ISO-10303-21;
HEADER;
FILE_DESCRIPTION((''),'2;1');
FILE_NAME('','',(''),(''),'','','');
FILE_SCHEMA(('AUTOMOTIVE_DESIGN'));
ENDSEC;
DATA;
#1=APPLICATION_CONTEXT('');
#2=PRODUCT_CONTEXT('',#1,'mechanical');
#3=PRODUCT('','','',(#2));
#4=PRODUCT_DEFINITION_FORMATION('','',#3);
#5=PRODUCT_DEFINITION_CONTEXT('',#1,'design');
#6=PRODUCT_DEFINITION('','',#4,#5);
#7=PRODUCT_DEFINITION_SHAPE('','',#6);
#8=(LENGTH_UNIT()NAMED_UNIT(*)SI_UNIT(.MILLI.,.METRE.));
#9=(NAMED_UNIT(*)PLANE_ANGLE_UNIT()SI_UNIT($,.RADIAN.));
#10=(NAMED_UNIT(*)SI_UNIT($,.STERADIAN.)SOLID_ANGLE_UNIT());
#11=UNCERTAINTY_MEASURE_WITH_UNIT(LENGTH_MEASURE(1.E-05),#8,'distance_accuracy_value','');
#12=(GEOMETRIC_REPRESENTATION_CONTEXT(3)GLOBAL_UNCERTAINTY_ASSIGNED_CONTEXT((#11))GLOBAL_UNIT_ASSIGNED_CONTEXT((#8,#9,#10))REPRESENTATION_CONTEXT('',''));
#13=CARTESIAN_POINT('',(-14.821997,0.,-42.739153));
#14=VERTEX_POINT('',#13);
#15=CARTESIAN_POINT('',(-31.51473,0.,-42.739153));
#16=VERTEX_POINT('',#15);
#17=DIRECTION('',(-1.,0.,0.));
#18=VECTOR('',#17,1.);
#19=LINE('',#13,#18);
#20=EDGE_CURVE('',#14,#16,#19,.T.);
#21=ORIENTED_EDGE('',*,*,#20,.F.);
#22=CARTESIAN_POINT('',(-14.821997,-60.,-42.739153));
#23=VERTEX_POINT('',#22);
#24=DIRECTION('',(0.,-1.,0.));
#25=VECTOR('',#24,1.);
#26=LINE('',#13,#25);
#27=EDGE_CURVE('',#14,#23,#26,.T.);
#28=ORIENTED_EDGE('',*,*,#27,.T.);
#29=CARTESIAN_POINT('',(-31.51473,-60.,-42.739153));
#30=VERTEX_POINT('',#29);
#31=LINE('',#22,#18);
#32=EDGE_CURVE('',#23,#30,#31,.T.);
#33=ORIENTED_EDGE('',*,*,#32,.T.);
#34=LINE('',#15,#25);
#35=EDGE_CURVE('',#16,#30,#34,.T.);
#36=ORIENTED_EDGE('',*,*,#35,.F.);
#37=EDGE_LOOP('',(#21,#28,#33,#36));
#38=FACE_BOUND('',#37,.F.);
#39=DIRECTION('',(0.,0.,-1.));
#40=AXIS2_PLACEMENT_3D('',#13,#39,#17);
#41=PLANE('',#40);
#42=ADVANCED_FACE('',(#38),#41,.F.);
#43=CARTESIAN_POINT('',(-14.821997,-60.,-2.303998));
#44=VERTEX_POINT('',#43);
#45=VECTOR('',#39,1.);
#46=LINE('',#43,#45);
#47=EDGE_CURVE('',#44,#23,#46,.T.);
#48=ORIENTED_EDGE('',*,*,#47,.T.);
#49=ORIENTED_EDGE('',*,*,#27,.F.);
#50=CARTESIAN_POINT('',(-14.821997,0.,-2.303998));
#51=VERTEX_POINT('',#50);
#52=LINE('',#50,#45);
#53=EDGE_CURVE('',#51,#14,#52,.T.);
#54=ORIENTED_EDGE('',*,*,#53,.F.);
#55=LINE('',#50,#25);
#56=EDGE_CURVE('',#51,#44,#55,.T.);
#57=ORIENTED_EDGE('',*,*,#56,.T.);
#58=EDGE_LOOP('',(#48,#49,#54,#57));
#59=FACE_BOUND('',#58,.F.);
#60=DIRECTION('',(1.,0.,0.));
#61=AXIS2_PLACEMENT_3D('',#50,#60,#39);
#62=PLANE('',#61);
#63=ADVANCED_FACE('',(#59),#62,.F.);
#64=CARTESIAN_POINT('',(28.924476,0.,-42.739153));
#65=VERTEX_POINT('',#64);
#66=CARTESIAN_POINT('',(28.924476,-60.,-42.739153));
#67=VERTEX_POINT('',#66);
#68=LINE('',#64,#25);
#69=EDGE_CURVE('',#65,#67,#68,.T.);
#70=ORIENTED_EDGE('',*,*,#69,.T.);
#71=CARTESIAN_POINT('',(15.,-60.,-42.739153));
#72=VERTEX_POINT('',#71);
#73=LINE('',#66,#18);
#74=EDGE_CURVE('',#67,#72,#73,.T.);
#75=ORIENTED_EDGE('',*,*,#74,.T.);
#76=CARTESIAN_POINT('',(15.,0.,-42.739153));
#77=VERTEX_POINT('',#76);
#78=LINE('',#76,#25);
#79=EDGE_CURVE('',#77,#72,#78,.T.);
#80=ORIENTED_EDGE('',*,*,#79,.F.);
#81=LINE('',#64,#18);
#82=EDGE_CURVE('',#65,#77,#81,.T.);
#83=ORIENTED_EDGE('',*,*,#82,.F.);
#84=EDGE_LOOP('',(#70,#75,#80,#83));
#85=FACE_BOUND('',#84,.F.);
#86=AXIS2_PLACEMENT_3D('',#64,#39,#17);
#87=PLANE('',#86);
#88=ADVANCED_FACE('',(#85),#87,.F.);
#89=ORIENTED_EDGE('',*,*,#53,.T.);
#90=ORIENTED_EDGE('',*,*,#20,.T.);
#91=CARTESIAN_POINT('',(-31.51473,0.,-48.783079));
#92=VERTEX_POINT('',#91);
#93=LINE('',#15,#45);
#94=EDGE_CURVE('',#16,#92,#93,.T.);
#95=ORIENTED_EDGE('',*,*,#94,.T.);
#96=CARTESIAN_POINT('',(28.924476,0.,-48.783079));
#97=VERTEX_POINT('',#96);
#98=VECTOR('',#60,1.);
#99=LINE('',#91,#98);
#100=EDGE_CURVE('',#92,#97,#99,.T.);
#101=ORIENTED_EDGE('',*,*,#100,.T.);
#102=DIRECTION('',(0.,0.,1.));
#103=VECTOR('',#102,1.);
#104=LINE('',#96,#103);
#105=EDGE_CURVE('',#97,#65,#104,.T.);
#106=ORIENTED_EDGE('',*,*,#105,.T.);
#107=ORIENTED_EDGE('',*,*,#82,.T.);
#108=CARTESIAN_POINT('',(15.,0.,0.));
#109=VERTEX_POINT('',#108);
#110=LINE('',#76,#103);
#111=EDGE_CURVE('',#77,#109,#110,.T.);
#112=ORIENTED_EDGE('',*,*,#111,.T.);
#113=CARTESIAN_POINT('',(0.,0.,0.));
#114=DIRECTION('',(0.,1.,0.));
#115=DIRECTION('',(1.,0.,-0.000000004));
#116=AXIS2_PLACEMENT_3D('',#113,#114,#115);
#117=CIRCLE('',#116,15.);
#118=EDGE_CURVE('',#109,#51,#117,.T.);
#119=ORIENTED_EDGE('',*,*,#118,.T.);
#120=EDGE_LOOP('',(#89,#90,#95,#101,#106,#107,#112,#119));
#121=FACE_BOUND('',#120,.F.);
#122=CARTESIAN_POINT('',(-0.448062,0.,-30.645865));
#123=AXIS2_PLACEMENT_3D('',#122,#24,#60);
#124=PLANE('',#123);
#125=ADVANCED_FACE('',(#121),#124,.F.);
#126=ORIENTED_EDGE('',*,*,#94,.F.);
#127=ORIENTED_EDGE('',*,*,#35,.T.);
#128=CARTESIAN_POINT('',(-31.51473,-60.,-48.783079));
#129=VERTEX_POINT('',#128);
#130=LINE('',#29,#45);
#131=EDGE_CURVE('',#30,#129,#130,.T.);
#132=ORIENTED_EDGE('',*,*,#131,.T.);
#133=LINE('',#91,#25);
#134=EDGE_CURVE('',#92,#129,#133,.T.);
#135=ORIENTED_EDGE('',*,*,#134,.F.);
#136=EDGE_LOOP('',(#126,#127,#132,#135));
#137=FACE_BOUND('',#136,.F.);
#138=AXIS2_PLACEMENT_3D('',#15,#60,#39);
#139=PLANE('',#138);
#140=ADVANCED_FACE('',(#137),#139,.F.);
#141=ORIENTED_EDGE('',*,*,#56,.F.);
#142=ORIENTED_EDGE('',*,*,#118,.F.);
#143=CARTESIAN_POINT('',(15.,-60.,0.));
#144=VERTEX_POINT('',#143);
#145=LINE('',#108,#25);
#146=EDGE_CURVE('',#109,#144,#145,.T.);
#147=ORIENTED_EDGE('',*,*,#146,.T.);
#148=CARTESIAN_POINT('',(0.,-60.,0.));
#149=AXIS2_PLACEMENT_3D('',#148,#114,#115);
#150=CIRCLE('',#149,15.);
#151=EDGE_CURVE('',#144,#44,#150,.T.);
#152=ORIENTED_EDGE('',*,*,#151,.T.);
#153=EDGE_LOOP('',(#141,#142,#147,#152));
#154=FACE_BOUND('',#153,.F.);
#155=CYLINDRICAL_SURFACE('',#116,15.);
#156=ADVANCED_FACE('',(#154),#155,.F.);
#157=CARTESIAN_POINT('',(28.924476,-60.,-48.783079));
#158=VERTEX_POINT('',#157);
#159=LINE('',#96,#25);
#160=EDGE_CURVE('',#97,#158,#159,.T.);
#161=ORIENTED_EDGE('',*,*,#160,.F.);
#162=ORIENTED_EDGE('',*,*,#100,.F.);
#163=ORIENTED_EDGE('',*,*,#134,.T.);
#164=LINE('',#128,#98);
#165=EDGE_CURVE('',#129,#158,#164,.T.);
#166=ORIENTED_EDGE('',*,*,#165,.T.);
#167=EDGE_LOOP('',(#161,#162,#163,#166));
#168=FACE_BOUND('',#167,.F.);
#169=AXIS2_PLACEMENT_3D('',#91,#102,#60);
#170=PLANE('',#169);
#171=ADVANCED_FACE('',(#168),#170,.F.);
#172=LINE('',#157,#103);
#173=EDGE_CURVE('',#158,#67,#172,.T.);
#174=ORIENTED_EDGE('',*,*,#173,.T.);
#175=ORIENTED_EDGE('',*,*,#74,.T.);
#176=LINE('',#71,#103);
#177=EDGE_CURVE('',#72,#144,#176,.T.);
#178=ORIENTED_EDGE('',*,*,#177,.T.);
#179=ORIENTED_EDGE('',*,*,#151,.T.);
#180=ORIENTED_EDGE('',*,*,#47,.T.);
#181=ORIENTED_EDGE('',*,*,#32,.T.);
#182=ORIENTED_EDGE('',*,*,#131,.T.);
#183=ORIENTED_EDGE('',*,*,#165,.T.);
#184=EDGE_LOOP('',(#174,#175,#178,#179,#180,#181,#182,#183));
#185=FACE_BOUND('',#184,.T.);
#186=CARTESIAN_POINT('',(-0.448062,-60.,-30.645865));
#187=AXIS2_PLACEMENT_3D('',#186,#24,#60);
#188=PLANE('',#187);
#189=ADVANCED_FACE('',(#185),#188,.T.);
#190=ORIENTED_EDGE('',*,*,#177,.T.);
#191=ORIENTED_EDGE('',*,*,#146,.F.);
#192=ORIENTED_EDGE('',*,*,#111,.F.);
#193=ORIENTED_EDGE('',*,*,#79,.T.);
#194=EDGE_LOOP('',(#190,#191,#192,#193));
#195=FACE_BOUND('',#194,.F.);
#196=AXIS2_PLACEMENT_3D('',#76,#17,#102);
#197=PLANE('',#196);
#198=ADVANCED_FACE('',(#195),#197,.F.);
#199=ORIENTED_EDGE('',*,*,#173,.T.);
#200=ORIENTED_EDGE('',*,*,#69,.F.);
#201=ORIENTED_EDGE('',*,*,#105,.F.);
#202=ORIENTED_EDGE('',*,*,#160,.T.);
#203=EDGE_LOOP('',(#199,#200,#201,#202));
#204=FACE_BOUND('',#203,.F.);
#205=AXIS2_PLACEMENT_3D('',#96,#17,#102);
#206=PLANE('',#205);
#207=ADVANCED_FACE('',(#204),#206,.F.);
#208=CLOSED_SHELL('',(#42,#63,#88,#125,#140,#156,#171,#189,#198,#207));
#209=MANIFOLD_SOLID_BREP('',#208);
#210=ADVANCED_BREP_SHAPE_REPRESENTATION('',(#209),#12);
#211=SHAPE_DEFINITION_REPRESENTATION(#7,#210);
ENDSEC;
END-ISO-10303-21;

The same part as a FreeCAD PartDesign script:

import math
import FreeCAD as App
import Part
import Sketcher
from FreeCAD import Vector
Q = App.Units.Quantity

doc = App.newDocument("Part")
params = doc.addObject("Spreadsheet::Sheet", "Params")
for row, (alias, value) in enumerate([
    ("sketch1_radius", "15 mm"),
    ("pad1_length", "60 mm"),
], start=1):
    params.set(f"A{row}", alias)
    params.set(f"B{row}", "=" + value)
    params.setAlias(f"B{row}", alias)

body = doc.addObject("PartDesign::Body", "Body")

sketch1 = body.newObject("Sketcher::SketchObject", "Sketch")
sketch1.AttachmentSupport = (doc.getObject("XZ_Plane"), [""])
sketch1.MapMode = "FlatFace"
sketch1.addGeometry(Part.ArcOfCircle(Part.Circle(Vector(0, 0, 0), Vector(0, 0, 1), 15), math.radians(-171), math.radians(0)), False)
sketch1.addGeometry(Part.LineSegment(Vector(-15, -2, 0), Vector(-15, -43, 0)), False)
sketch1.addGeometry(Part.LineSegment(Vector(-15, -43, 0), Vector(-32, -43, 0)), False)
sketch1.addGeometry(Part.LineSegment(Vector(-32, -43, 0), Vector(-32, -49, 0)), False)
sketch1.addGeometry(Part.LineSegment(Vector(-32, -49, 0), Vector(29, -49, 0)), False)
sketch1.addGeometry(Part.LineSegment(Vector(29, -49, 0), Vector(29, -43, 0)), False)
sketch1.addGeometry(Part.LineSegment(Vector(29, -43, 0), Vector(15, -43, 0)), False)
sketch1.addGeometry(Part.LineSegment(Vector(15, -43, 0), Vector(15, 0, 0)), False)
sketch1.addConstraint(Sketcher.Constraint("Coincident", 0, 1, 1, 1))
sketch1.addConstraint(Sketcher.Constraint("Coincident", 1, 2, 2, 1))
sketch1.addConstraint(Sketcher.Constraint("Coincident", 2, 2, 3, 1))
sketch1.addConstraint(Sketcher.Constraint("Coincident", 3, 2, 4, 1))
sketch1.addConstraint(Sketcher.Constraint("Coincident", 4, 2, 5, 1))
sketch1.addConstraint(Sketcher.Constraint("Coincident", 5, 2, 6, 1))
sketch1.addConstraint(Sketcher.Constraint("Coincident", 6, 2, 7, 1))
sketch1.addConstraint(Sketcher.Constraint("Tangent", 7, 2, 0, 2))
sketch1.addConstraint(Sketcher.Constraint("Vertical", 1))
sketch1.addConstraint(Sketcher.Constraint("Horizontal", 2))
sketch1.addConstraint(Sketcher.Constraint("Vertical", 3))
sketch1.addConstraint(Sketcher.Constraint("Horizontal", 4))
sketch1.addConstraint(Sketcher.Constraint("Vertical", 5))
sketch1.addConstraint(Sketcher.Constraint("Horizontal", 6))
sketch1.addConstraint(Sketcher.Constraint("Vertical", 7))
sketch1.addConstraint(Sketcher.Constraint("Coincident", 0, 3, -1, 1))
sketch1.addConstraint(Sketcher.Constraint("Horizontal", 2, 2, 5, 2))
sketch1.addConstraint(Sketcher.Constraint("Radius", 0, Q("15 mm")))
sketch1.addConstraint(Sketcher.Constraint("DistanceY", 0, 1, 0, 3, Q("2.303998 mm")))
sketch1.addConstraint(Sketcher.Constraint("DistanceX", 2, 2, 2, 1, Q("16.692733 mm")))
sketch1.addConstraint(Sketcher.Constraint("DistanceX", 4, 1, 4, 2, Q("60.439206 mm")))
sketch1.addConstraint(Sketcher.Constraint("DistanceY", 1, 2, 1, 1, Q("40.435155 mm")))
sketch1.addConstraint(Sketcher.Constraint("DistanceY", 3, 2, 3, 1, Q("6.043926 mm")))
sketch1.setExpression("Constraints[17]", "Params.sketch1_radius")
pad1 = body.newObject("PartDesign::Pad", "Pad")
pad1.Profile = sketch1
pad1.setExpression("Length", "Params.pad1_length")

doc.recompute()
